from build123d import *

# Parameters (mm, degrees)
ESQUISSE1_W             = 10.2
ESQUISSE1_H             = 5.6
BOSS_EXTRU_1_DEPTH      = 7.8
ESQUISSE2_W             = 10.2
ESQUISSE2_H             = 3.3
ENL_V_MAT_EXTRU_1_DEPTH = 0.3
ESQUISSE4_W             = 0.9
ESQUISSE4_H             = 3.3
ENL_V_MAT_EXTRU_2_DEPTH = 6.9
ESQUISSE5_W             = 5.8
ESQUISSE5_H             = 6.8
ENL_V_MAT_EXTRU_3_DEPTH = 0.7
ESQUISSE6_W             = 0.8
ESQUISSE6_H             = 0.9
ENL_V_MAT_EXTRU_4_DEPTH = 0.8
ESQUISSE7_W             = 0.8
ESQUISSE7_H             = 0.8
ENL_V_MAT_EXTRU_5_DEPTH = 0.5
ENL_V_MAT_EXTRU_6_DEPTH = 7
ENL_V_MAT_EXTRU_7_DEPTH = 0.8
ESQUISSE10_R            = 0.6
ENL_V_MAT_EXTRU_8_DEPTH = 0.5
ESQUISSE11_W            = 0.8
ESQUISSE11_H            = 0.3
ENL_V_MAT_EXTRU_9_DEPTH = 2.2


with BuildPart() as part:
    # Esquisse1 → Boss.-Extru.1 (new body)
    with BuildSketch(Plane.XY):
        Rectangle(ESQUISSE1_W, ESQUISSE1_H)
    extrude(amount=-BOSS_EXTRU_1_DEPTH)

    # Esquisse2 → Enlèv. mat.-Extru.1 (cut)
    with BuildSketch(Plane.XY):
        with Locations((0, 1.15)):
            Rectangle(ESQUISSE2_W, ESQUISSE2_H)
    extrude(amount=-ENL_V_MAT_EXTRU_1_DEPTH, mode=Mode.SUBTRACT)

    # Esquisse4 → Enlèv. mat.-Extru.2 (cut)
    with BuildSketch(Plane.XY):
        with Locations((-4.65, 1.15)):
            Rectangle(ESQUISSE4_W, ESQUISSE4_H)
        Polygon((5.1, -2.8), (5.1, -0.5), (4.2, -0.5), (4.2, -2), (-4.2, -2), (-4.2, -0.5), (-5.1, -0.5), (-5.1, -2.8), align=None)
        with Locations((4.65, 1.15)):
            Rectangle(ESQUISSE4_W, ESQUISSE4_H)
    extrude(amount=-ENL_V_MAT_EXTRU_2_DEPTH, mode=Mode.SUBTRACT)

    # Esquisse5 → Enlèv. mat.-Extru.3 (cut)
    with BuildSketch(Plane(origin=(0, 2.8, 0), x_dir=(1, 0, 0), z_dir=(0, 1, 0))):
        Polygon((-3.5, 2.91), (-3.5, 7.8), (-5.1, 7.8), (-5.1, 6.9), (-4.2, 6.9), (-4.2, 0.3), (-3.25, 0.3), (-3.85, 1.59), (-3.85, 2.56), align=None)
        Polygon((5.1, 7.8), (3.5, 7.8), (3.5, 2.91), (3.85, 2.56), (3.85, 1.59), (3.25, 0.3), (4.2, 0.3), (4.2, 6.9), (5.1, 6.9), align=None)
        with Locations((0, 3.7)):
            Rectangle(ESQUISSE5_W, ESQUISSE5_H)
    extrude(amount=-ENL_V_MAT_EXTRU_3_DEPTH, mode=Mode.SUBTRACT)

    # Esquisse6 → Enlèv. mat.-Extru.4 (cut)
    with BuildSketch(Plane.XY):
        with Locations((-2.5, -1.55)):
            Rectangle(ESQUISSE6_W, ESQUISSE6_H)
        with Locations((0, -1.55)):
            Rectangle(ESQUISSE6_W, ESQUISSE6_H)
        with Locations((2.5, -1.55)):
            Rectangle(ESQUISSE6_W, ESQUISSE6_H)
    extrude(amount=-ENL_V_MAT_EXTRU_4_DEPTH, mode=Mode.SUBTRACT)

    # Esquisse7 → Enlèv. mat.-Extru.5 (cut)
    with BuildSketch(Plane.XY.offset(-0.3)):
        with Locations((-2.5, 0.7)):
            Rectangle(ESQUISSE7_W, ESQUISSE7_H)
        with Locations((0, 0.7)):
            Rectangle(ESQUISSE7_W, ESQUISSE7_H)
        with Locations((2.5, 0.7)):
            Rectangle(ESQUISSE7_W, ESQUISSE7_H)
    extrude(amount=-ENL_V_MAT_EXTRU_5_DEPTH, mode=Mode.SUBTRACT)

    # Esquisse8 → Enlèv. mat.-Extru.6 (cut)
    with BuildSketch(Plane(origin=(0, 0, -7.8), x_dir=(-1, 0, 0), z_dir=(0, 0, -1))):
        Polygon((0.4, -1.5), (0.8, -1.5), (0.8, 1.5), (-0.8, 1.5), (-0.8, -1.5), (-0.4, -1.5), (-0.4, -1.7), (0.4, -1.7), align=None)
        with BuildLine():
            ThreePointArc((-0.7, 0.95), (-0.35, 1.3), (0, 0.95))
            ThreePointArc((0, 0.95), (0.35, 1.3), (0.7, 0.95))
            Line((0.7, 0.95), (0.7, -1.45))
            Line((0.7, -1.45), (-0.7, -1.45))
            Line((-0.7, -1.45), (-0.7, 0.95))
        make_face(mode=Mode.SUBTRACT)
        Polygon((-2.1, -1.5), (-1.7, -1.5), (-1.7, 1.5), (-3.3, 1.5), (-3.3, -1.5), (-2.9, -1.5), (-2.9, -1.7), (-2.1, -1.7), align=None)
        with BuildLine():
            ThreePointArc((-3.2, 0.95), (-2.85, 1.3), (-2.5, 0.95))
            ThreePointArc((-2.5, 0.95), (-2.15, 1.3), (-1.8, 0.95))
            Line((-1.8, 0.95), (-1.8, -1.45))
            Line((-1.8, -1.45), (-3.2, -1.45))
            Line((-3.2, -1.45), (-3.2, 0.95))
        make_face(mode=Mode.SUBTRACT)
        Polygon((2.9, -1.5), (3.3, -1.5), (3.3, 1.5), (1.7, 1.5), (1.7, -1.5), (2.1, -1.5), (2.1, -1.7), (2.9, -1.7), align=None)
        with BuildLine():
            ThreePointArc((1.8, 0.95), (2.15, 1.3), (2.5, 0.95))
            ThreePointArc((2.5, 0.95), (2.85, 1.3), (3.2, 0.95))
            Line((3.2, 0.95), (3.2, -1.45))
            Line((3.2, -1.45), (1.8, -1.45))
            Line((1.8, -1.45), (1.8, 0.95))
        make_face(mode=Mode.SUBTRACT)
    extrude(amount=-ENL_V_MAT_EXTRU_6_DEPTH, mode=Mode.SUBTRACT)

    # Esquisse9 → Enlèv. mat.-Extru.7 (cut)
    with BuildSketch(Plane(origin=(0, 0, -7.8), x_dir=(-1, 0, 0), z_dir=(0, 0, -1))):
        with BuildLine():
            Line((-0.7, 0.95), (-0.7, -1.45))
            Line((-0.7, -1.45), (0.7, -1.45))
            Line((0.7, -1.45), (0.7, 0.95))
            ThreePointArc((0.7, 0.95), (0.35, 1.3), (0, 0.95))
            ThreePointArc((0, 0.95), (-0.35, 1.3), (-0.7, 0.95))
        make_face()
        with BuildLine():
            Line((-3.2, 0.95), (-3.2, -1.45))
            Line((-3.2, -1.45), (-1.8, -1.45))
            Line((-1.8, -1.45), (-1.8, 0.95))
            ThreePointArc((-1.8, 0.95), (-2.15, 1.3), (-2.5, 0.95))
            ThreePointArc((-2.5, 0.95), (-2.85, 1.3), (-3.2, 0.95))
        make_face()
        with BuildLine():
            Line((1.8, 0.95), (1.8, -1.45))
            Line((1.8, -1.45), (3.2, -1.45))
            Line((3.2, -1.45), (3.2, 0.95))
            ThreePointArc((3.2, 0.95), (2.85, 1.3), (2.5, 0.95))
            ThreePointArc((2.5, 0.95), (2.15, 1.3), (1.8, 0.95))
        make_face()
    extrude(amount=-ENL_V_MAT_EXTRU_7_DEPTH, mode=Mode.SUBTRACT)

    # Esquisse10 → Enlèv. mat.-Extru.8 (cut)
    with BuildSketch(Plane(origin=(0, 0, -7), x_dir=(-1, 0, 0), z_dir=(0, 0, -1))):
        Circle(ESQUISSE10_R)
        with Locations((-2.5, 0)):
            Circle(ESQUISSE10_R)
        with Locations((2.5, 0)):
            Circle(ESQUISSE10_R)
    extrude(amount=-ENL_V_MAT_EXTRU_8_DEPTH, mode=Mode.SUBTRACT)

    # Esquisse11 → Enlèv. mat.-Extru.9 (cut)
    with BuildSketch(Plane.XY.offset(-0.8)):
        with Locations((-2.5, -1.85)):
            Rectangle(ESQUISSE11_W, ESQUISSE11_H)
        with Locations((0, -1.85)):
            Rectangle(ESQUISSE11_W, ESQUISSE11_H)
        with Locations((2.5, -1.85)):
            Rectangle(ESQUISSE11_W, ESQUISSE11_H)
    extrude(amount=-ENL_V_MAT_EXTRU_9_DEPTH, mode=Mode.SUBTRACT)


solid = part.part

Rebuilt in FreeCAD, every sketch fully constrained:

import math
import FreeCAD as App
import Part
import Sketcher
Q = App.Units.Quantity

doc = App.newDocument("Part")
body = doc.addObject("PartDesign::Body", "Body")

# Sketch on XY plane
sketch1 = doc.addObject("Sketcher::SketchObject", "Sketch")
body.addObject(sketch1)
sketch1.AttachmentSupport = (doc.XY_Plane, [""])
sketch1.MapMode = "FlatFace"
sketch1.addGeometry([
    Part.LineSegment(App.Vector(-5, 3, 0), App.Vector(-5, -3, 0)),
    Part.LineSegment(App.Vector(-5, -3, 0), App.Vector(5, -3, 0)),
    Part.LineSegment(App.Vector(5, -3, 0), App.Vector(5, 3, 0)),
    Part.LineSegment(App.Vector(5, 3, 0), App.Vector(-5, 3, 0)),
], False)
sketch1.addConstraint([
    Sketcher.Constraint("Coincident", 0, 2, 1, 1),
    Sketcher.Constraint("Coincident", 1, 2, 2, 1),
    Sketcher.Constraint("Coincident", 2, 2, 3, 1),
    Sketcher.Constraint("Coincident", 3, 2, 0, 1),
    Sketcher.Constraint("Vertical", 0),
    Sketcher.Constraint("Horizontal", 1),
    Sketcher.Constraint("Vertical", 2),
    Sketcher.Constraint("Horizontal", 3),
    Sketcher.Constraint("Symmetric", 0, 2, 2, 2, -1, 1),
    Sketcher.Constraint("DistanceX", 1, 1, 1, 2, Q("10.2 mm")),
    Sketcher.Constraint("DistanceY", 0, 2, 0, 1, Q("5.6 mm")),
])
pad1 = doc.addObject("PartDesign::Pad", "Pad")
body.addObject(pad1)
pad1.Profile = sketch1
pad1.Length = 7.8
pad1.Reversed = True

# Sketch on XY plane
sketch2 = doc.addObject("Sketcher::SketchObject", "Sketch001")
body.addObject(sketch2)
sketch2.AttachmentSupport = (doc.XY_Plane, [""])
sketch2.MapMode = "FlatFace"
sketch2.addGeometry([
    Part.LineSegment(App.Vector(-5.1, 2.8, 0), App.Vector(-5.1, -0.5, 0)),
    Part.LineSegment(App.Vector(-5.1, -0.5, 0), App.Vector(5.1, -0.5, 0)),
    Part.LineSegment(App.Vector(5.1, -0.5, 0), App.Vector(5.1, 2.8, 0)),
    Part.LineSegment(App.Vector(5.1, 2.8, 0), App.Vector(-5.1, 2.8, 0)),
], False)
sketch2.addConstraint([
    Sketcher.Constraint("Coincident", 0, 2, 1, 1),
    Sketcher.Constraint("Coincident", 1, 2, 2, 1),
    Sketcher.Constraint("Coincident", 2, 2, 3, 1),
    Sketcher.Constraint("Coincident", 3, 2, 0, 1),
    Sketcher.Constraint("Vertical", 0),
    Sketcher.Constraint("Horizontal", 1),
    Sketcher.Constraint("Vertical", 2),
    Sketcher.Constraint("Horizontal", 3),
    Sketcher.Constraint("DistanceX", 1, 1, 1, 2, Q("10.2 mm")),
    Sketcher.Constraint("DistanceY", 0, 2, 0, 1, Q("3.3 mm")),
    Sketcher.Constraint("DistanceX", 0, 2, -1, 1, Q("5.1 mm")),
    Sketcher.Constraint("DistanceY", 0, 2, -1, 1, Q("0.5 mm")),
])
pocket1 = doc.addObject("PartDesign::Pocket", "Pocket")
body.addObject(pocket1)
pocket1.Profile = sketch2
pocket1.Length = 0.3

# Sketch on XY plane
sketch3 = doc.addObject("Sketcher::SketchObject", "Sketch002")
body.addObject(sketch3)
sketch3.AttachmentSupport = (doc.XY_Plane, [""])
sketch3.MapMode = "FlatFace"
sketch3.addGeometry([
    Part.LineSegment(App.Vector(-5.1, 2.8, 0), App.Vector(-5.1, -2.8, 0)),  # 0
    Part.LineSegment(App.Vector(-5.1, -2.8, 0), App.Vector(5.1, -2.8, 0)),  # 1
    Part.LineSegment(App.Vector(5.1, -2.8, 0), App.Vector(5.1, 2.8, 0)),  # 2
    Part.LineSegment(App.Vector(5.1, 2.8, 0), App.Vector(4.2, 2.8, 0)),  # 3
    Part.LineSegment(App.Vector(4.2, 2.8, 0), App.Vector(4.2, -2, 0)),  # 4
    Part.LineSegment(App.Vector(4.2, -2, 0), App.Vector(-4.2, -2, 0)),  # 5
    Part.LineSegment(App.Vector(-4.2, -2, 0), App.Vector(-4.2, 2.8, 0)),  # 6
    Part.LineSegment(App.Vector(-4.2, 2.8, 0), App.Vector(-5.1, 2.8, 0)),  # 7
], False)
sketch3.addConstraint([
    Sketcher.Constraint("Coincident", 0, 2, 1, 1),
    Sketcher.Constraint("Coincident", 1, 2, 2, 1),
    Sketcher.Constraint("Coincident", 2, 2, 3, 1),
    Sketcher.Constraint("Coincident", 3, 2, 4, 1),
    Sketcher.Constraint("Coincident", 4, 2, 5, 1),
    Sketcher.Constraint("Coincident", 5, 2, 6, 1),
    Sketcher.Constraint("Coincident", 6, 2, 7, 1),
    Sketcher.Constraint("Coincident", 7, 2, 0, 1),
    Sketcher.Constraint("Vertical", 0),
    Sketcher.Constraint("Horizontal", 1),
    Sketcher.Constraint("Vertical", 2),
    Sketcher.Constraint("Horizontal", 3),
    Sketcher.Constraint("Vertical", 4),
    Sketcher.Constraint("Horizontal", 5),
    Sketcher.Constraint("Vertical", 6),
    Sketcher.Constraint("Horizontal", 7),
    Sketcher.Constraint("Symmetric", 0, 2, 2, 2, -1, 1),
    Sketcher.Constraint("Symmetric", 3, 2, 6, 2, -2),
    Sketcher.Constraint("DistanceX", 1, 1, 1, 2, Q("10.2 mm")),
    Sketcher.Constraint("DistanceX", 3, 2, 3, 1, Q("0.9 mm")),
    Sketcher.Constraint("DistanceY", 0, 2, 0, 1, Q("5.6 mm")),
    Sketcher.Constraint("DistanceY", 4, 2, 4, 1, Q("4.8 mm")),
])
pocket2 = doc.addObject("PartDesign::Pocket", "Pocket001")
body.addObject(pocket2)
pocket2.Profile = sketch3
pocket2.Length = 6.9

# Sketch on XZ plane
sketch4 = doc.addObject("Sketcher::SketchObject", "Sketch003")
body.addObject(sketch4)
sketch4.AttachmentSupport = (doc.XZ_Plane, [""])
sketch4.MapMode = "FlatFace"
sketch4.AttachmentOffset = App.Placement(App.Vector(0, 0, -2.8), App.Rotation())
sketch4.addGeometry([
    Part.LineSegment(App.Vector(-3.5, -2.91, 0), App.Vector(-3.5, -7.8, 0)),  # 0
    Part.LineSegment(App.Vector(-3.5, -7.8, 0), App.Vector(-5.1, -7.8, 0)),  # 1
    Part.LineSegment(App.Vector(-5.1, -7.8, 0), App.Vector(-5.1, -6.9, 0)),  # 2
    Part.LineSegment(App.Vector(-5.1, -6.9, 0), App.Vector(-4.2, -6.9, 0)),  # 3
    Part.LineSegment(App.Vector(-4.2, -6.9, 0), App.Vector(-4.2, -0.3, 0)),  # 4
    Part.LineSegment(App.Vector(-4.2, -0.3, 0), App.Vector(-3.25, -0.3, 0)),  # 5
    Part.LineSegment(App.Vector(-3.25, -0.3, 0), App.Vector(-3.85, -1.59, 0)),  # 6
    Part.LineSegment(App.Vector(-3.85, -1.59, 0), App.Vector(-3.85, -2.56, 0)),  # 7
    Part.LineSegment(App.Vector(-3.85, -2.56, 0), App.Vector(-3.5, -2.91, 0)),  # 8
    Part.LineSegment(App.Vector(5.1, -7.8, 0), App.Vector(3.5, -7.8, 0)),  # 9
    Part.LineSegment(App.Vector(3.5, -7.8, 0), App.Vector(3.5, -2.91, 0)),  # 10
    Part.LineSegment(App.Vector(3.5, -2.91, 0), App.Vector(3.85, -2.56, 0)),  # 11
    Part.LineSegment(App.Vector(3.85, -2.56, 0), App.Vector(3.85, -1.59, 0)),  # 12
    Part.LineSegment(App.Vector(3.85, -1.59, 0), App.Vector(3.25, -0.3, 0)),  # 13
    Part.LineSegment(App.Vector(3.25, -0.3, 0), App.Vector(4.2, -0.3, 0)),  # 14
    Part.LineSegment(App.Vector(4.2, -0.3, 0), App.Vector(4.2, -6.9, 0)),  # 15
    Part.LineSegment(App.Vector(4.2, -6.9, 0), App.Vector(5.1, -6.9, 0)),  # 16
    Part.LineSegment(App.Vector(5.1, -6.9, 0), App.Vector(5.1, -7.8, 0)),  # 17
    Part.LineSegment(App.Vector(-2.9, -7.1, 0), App.Vector(-2.9, -0.3, 0)),  # 18
    Part.LineSegment(App.Vector(-2.9, -0.3, 0), App.Vector(2.9, -0.3, 0)),  # 19
    Part.LineSegment(App.Vector(2.9, -0.3, 0), App.Vector(2.9, -7.1, 0)),  # 20
    Part.LineSegment(App.Vector(2.9, -7.1, 0), App.Vector(-2.9, -7.1, 0)),  # 21
], False)
sketch4.addConstraint([
    Sketcher.Constraint("Coincident", 0, 2, 1, 1),
    Sketcher.Constraint("Coincident", 1, 2, 2, 1),
    Sketcher.Constraint("Coincident", 2, 2, 3, 1),
    Sketcher.Constraint("Coincident", 3, 2, 4, 1),
    Sketcher.Constraint("Coincident", 4, 2, 5, 1),
    Sketcher.Constraint("Coincident", 5, 2, 6, 1),
    Sketcher.Constraint("Coincident", 6, 2, 7, 1),
    Sketcher.Constraint("Coincident", 7, 2, 8, 1),
    Sketcher.Constraint("Coincident", 8, 2, 0, 1),
    Sketcher.Constraint("Coincident", 9, 2, 10, 1),
    Sketcher.Constraint("Coincident", 10, 2, 11, 1),
    Sketcher.Constraint("Coincident", 11, 2, 12, 1),
    Sketcher.Constraint("Coincident", 12, 2, 13, 1),
    Sketcher.Constraint("Coincident", 13, 2, 14, 1),
    Sketcher.Constraint("Coincident", 14, 2, 15, 1),
    Sketcher.Constraint("Coincident", 15, 2, 16, 1),
    Sketcher.Constraint("Coincident", 16, 2, 17, 1),
    Sketcher.Constraint("Coincident", 17, 2, 9, 1),
    Sketcher.Constraint("Coincident", 18, 2, 19, 1),
    Sketcher.Constraint("Coincident", 19, 2, 20, 1),
    Sketcher.Constraint("Coincident", 20, 2, 21, 1),
    Sketcher.Constraint("Coincident", 21, 2, 18, 1),
    Sketcher.Constraint("Vertical", 0),
    Sketcher.Constraint("Horizontal", 1),
    Sketcher.Constraint("Vertical", 2),
    Sketcher.Constraint("Horizontal", 3),
    Sketcher.Constraint("Vertical", 4),
    Sketcher.Constraint("Horizontal", 5),
    Sketcher.Constraint("Vertical", 7),
    Sketcher.Constraint("Horizontal", 9),
    Sketcher.Constraint("Vertical", 10),
    Sketcher.Constraint("Vertical", 12),
    Sketcher.Constraint("Horizontal", 14),
    Sketcher.Constraint("Vertical", 15),
    Sketcher.Constraint("Horizontal", 16),
    Sketcher.Constraint("Vertical", 17),
    Sketcher.Constraint("Vertical", 18),
    Sketcher.Constraint("Horizontal", 19),
    Sketcher.Constraint("Vertical", 20),
    Sketcher.Constraint("Horizontal", 21),
    Sketcher.Constraint("Symmetric", 0, 2, 9, 2, -2),
    Sketcher.Constraint("Symmetric", 7, 2, 11, 2, -2),
    Sketcher.Constraint("Symmetric", 5, 2, 13, 2, -2),
    Sketcher.Constraint("Symmetric", 3, 2, 15, 2, -2),
    Sketcher.Constraint("Perpendicular", 8, 11),
    Sketcher.Constraint("Horizontal", 8, 2, 10, 2),
    Sketcher.Constraint("Horizontal", 6, 2, 12, 2),
    Sketcher.Constraint("Horizontal", 14, 2, 18, 2),
    Sketcher.Constraint("Equal", 1, 9),
    Sketcher.Constraint("Equal", 16, 2),
    Sketcher.Constraint("DistanceX", 1, 2, 1, 1, Q("1.6 mm")),
    Sketcher.Constraint("DistanceX", 3, 1, 3, 2, Q("0.9 mm")),
    Sketcher.Constraint("DistanceX", 19, 1, 19, 2, Q("5.8 mm")),
    Sketcher.Constraint("DistanceY", 4, 1, 4, 2, Q("6.6 mm")),
    Sketcher.Constraint("DistanceY", 18, 1, 18, 2, Q("6.8 mm")),
    Sketcher.Constraint("DistanceX", 0, 2, 9, 2, Q("7 mm")),
    Sketcher.Constraint("DistanceX", 5, 1, 5, 2, Q("0.95 mm")),
    Sketcher.Constraint("DistanceY", 0, 2, 0, 1, Q("4.89 mm")),
    Sketcher.Constraint("DistanceY", 7, 2, 7, 1, Q("0.97 mm")),
    Sketcher.Constraint("DistanceY", 0, 2, -1, 1, Q("7.8 mm")),
    Sketcher.Constraint("DistanceX", 18, 2, -1, 1, Q("2.9 mm")),
    Sketcher.Constraint("DistanceX", 6, 2, 5, 2, Q("0.6 mm")),
])
pocket3 = doc.addObject("PartDesign::Pocket", "Pocket002")
body.addObject(pocket3)
pocket3.Profile = sketch4
pocket3.Length = 0.7
pocket3.Reversed = True

# Sketch on XY plane
sketch5 = doc.addObject("Sketcher::SketchObject", "Sketch004")
body.addObject(sketch5)
sketch5.AttachmentSupport = (doc.XY_Plane, [""])
sketch5.MapMode = "FlatFace"
sketch5.addGeometry([
    Part.LineSegment(App.Vector(-2.9, -1.1, 0), App.Vector(-2.9, -2, 0)),  # 0
    Part.LineSegment(App.Vector(-2.9, -2, 0), App.Vector(-2.1, -2, 0)),  # 1
    Part.LineSegment(App.Vector(-2.1, -2, 0), App.Vector(-2.1, -1.1, 0)),  # 2
    Part.LineSegment(App.Vector(-2.1, -1.1, 0), App.Vector(-2.9, -1.1, 0)),  # 3
    Part.LineSegment(App.Vector(-0.4, -1.1, 0), App.Vector(-0.4, -2, 0)),  # 4
    Part.LineSegment(App.Vector(-0.4, -2, 0), App.Vector(0.4, -2, 0)),  # 5
    Part.LineSegment(App.Vector(0.4, -2, 0), App.Vector(0.4, -1.1, 0)),  # 6
    Part.LineSegment(App.Vector(0.4, -1.1, 0), App.Vector(-0.4, -1.1, 0)),  # 7
    Part.LineSegment(App.Vector(2.1, -1.1, 0), App.Vector(2.1, -2, 0)),  # 8
    Part.LineSegment(App.Vector(2.1, -2, 0), App.Vector(2.9, -2, 0)),  # 9
    Part.LineSegment(App.Vector(2.9, -2, 0), App.Vector(2.9, -1.1, 0)),  # 10
    Part.LineSegment(App.Vector(2.9, -1.1, 0), App.Vector(2.1, -1.1, 0)),  # 11
], False)
sketch5.addConstraint([
    Sketcher.Constraint("Coincident", 0, 2, 1, 1),
    Sketcher.Constraint("Coincident", 1, 2, 2, 1),
    Sketcher.Constraint("Coincident", 2, 2, 3, 1),
    Sketcher.Constraint("Coincident", 3, 2, 0, 1),
    Sketcher.Constraint("Coincident", 4, 2, 5, 1),
    Sketcher.Constraint("Coincident", 5, 2, 6, 1),
    Sketcher.Constraint("Coincident", 6, 2, 7, 1),
    Sketcher.Constraint("Coincident", 7, 2, 4, 1),
    Sketcher.Constraint("Coincident", 8, 2, 9, 1),
    Sketcher.Constraint("Coincident", 9, 2, 10, 1),
    Sketcher.Constraint("Coincident", 10, 2, 11, 1),
    Sketcher.Constraint("Coincident", 11, 2, 8, 1),
    Sketcher.Constraint("Vertical", 0),
    Sketcher.Constraint("Horizontal", 1),
    Sketcher.Constraint("Vertical", 2),
    Sketcher.Constraint("Horizontal", 3),
    Sketcher.Constraint("Vertical", 4),
    Sketcher.Constraint("Horizontal", 5),
    Sketcher.Constraint("Vertical", 6),
    Sketcher.Constraint("Horizontal", 7),
    Sketcher.Constraint("Vertical", 8),
    Sketcher.Constraint("Horizontal", 9),
    Sketcher.Constraint("Vertical", 10),
    Sketcher.Constraint("Horizontal", 11),
    Sketcher.Constraint("Symmetric", 1, 2, 8, 2, -2),
    Sketcher.Constraint("Symmetric", 3, 2, 10, 2, -2),
    Sketcher.Constraint("Horizontal", 1, 2, 4, 2),
    Sketcher.Constraint("Horizontal", 3, 2, 6, 2),
    Sketcher.Constraint("Equal", 3, 5),
    Sketcher.Constraint("DistanceX", 1, 1, 1, 2, Q("0.8 mm")),
    Sketcher.Constraint("DistanceY", 0, 2, 0, 1, Q("0.9 mm")),
    Sketcher.Constraint("DistanceY", 0, 2, -1, 1, Q("2 mm")),
    Sketcher.Constraint("DistanceX", 0, 2, -1, 1, Q("2.9 mm")),
    Sketcher.Constraint("DistanceX", 4, 2, -1, 1, Q("0.4 mm")),
])
pocket4 = doc.addObject("PartDesign::Pocket", "Pocket003")
body.addObject(pocket4)
pocket4.Profile = sketch5
pocket4.Length = 0.8

# Sketch on XY plane
sketch6 = doc.addObject("Sketcher::SketchObject", "Sketch005")
body.addObject(sketch6)
sketch6.AttachmentSupport = (doc.XY_Plane, [""])
sketch6.MapMode = "FlatFace"
sketch6.AttachmentOffset = App.Placement(App.Vector(0, 0, -0.3), App.Rotation())
sketch6.addGeometry([
    Part.LineSegment(App.Vector(-2.9, 1.1, 0), App.Vector(-2.9, 0.3, 0)),  # 0
    Part.LineSegment(App.Vector(-2.9, 0.3, 0), App.Vector(-2.1, 0.3, 0)),  # 1
    Part.LineSegment(App.Vector(-2.1, 0.3, 0), App.Vector(-2.1, 1.1, 0)),  # 2
    Part.LineSegment(App.Vector(-2.1, 1.1, 0), App.Vector(-2.9, 1.1, 0)),  # 3
    Part.LineSegment(App.Vector(-0.4, 1.1, 0), App.Vector(-0.4, 0.3, 0)),  # 4
    Part.LineSegment(App.Vector(-0.4, 0.3, 0), App.Vector(0.4, 0.3, 0)),  # 5
    Part.LineSegment(App.Vector(0.4, 0.3, 0), App.Vector(0.4, 1.1, 0)),  # 6
    Part.LineSegment(App.Vector(0.4, 1.1, 0), App.Vector(-0.4, 1.1, 0)),  # 7
    Part.LineSegment(App.Vector(2.1, 1.1, 0), App.Vector(2.1, 0.3, 0)),  # 8
    Part.LineSegment(App.Vector(2.1, 0.3, 0), App.Vector(2.9, 0.3, 0)),  # 9
    Part.LineSegment(App.Vector(2.9, 0.3, 0), App.Vector(2.9, 1.1, 0)),  # 10
    Part.LineSegment(App.Vector(2.9, 1.1, 0), App.Vector(2.1, 1.1, 0)),  # 11
], False)
sketch6.addConstraint([
    Sketcher.Constraint("Coincident", 0, 2, 1, 1),
    Sketcher.Constraint("Coincident", 1, 2, 2, 1),
    Sketcher.Constraint("Coincident", 2, 2, 3, 1),
    Sketcher.Constraint("Coincident", 3, 2, 0, 1),
    Sketcher.Constraint("Coincident", 4, 2, 5, 1),
    Sketcher.Constraint("Coincident", 5, 2, 6, 1),
    Sketcher.Constraint("Coincident", 6, 2, 7, 1),
    Sketcher.Constraint("Coincident", 7, 2, 4, 1),
    Sketcher.Constraint("Coincident", 8, 2, 9, 1),
    Sketcher.Constraint("Coincident", 9, 2, 10, 1),
    Sketcher.Constraint("Coincident", 10, 2, 11, 1),
    Sketcher.Constraint("Coincident", 11, 2, 8, 1),
    Sketcher.Constraint("Vertical", 0),
    Sketcher.Constraint("Horizontal", 1),
    Sketcher.Constraint("Vertical", 2),
    Sketcher.Constraint("Horizontal", 3),
    Sketcher.Constraint("Vertical", 4),
    Sketcher.Constraint("Horizontal", 5),
    Sketcher.Constraint("Vertical", 6),
    Sketcher.Constraint("Horizontal", 7),
    Sketcher.Constraint("Vertical", 8),
    Sketcher.Constraint("Horizontal", 9),
    Sketcher.Constraint("Vertical", 10),
    Sketcher.Constraint("Horizontal", 11),
    Sketcher.Constraint("Symmetric", 1, 2, 8, 2, -2),
    Sketcher.Constraint("Symmetric", 3, 2, 10, 2, -2),
    Sketcher.Constraint("Horizontal", 1, 2, 4, 2),
    Sketcher.Constraint("Horizontal", 3, 2, 6, 2),
    Sketcher.Constraint("Equal", 3, 5),
    Sketcher.Constraint("Equal", 11, 0),
    Sketcher.Constraint("DistanceX", 1, 1, 1, 2, Q("0.8 mm")),
    Sketcher.Constraint("DistanceX", 0, 2, -1, 1, Q("2.9 mm")),
    Sketcher.Constraint("DistanceY", -1, 1, 0, 2, Q("0.3 mm")),
    Sketcher.Constraint("DistanceX", 4, 2, -1, 1, Q("0.4 mm")),
])
pocket5 = doc.addObject("PartDesign::Pocket", "Pocket004")
body.addObject(pocket5)
pocket5.Profile = sketch6
pocket5.Length = 0.5

# Sketch on XY plane
sketch7 = doc.addObject("Sketcher::SketchObject", "Sketch006")
body.addObject(sketch7)
sketch7.AttachmentSupport = (doc.XY_Plane, [""])
sketch7.MapMode = "FlatFace"
sketch7.AttachmentOffset = App.Placement(App.Vector(0, 0, -7.8), App.Rotation())
sketch7.addGeometry([
    Part.LineSegment(App.Vector(-0.4, -1.5, 0), App.Vector(-0.8, -1.5, 0)),  # 0
    Part.LineSegment(App.Vector(-0.8, -1.5, 0), App.Vector(-0.8, 1.5, 0)),  # 1
    Part.LineSegment(App.Vector(-0.8, 1.5, 0), App.Vector(0.8, 1.5, 0)),  # 2
    Part.LineSegment(App.Vector(0.8, 1.5, 0), App.Vector(0.8, -1.5, 0)),  # 3
    Part.LineSegment(App.Vector(0.8, -1.5, 0), App.Vector(0.4, -1.5, 0)),  # 4
    Part.LineSegment(App.Vector(0.4, -1.5, 0), App.Vector(0.4, -1.7, 0)),  # 5
    Part.LineSegment(App.Vector(0.4, -1.7, 0), App.Vector(-0.4, -1.7, 0)),  # 6
    Part.LineSegment(App.Vector(-0.4, -1.7, 0), App.Vector(-0.4, -1.5, 0)),  # 7
    Part.LineSegment(App.Vector(0.7, -1.45, 0), App.Vector(0.7, 0.95, 0)),  # 8
    Part.ArcOfCircle(Part.Circle(App.Vector(0.35, 0.95, 0), App.Vector(0, 0, 1), 0.35), math.radians(0), math.radians(180)),  # 9
    Part.ArcOfCircle(Part.Circle(App.Vector(-0.35, 0.95, 0), App.Vector(0, 0, 1), 0.35), math.radians(0), math.radians(180)),  # 10
    Part.LineSegment(App.Vector(-0.7, 0.95, 0), App.Vector(-0.7, -1.45, 0)),  # 11
    Part.LineSegment(App.Vector(-0.7, -1.45, 0), App.Vector(0.7, -1.45, 0)),  # 12
    Part.LineSegment(App.Vector(2.1, -1.5, 0), App.Vector(1.7, -1.5, 0)),  # 13
    Part.LineSegment(App.Vector(1.7, -1.5, 0), App.Vector(1.7, 1.5, 0)),  # 14
    Part.LineSegment(App.Vector(1.7, 1.5, 0), App.Vector(3.3, 1.5, 0)),  # 15
    Part.LineSegment(App.Vector(3.3, 1.5, 0), App.Vector(3.3, -1.5, 0)),  # 16
    Part.LineSegment(App.Vector(3.3, -1.5, 0), App.Vector(2.9, -1.5, 0)),  # 17
    Part.LineSegment(App.Vector(2.9, -1.5, 0), App.Vector(2.9, -1.7, 0)),  # 18
    Part.LineSegment(App.Vector(2.9, -1.7, 0), App.Vector(2.1, -1.7, 0)),  # 19
    Part.LineSegment(App.Vector(2.1, -1.7, 0), App.Vector(2.1, -1.5, 0)),  # 20
    Part.LineSegment(App.Vector(3.2, -1.45, 0), App.Vector(3.2, 0.95, 0)),  # 21
    Part.ArcOfCircle(Part.Circle(App.Vector(2.85, 0.95, 0), App.Vector(0, 0, 1), 0.35), math.radians(0), math.radians(180)),  # 22
    Part.ArcOfCircle(Part.Circle(App.Vector(2.15, 0.95, 0), App.Vector(0, 0, 1), 0.35), math.radians(0), math.radians(180)),  # 23
    Part.LineSegment(App.Vector(1.8, 0.95, 0), App.Vector(1.8, -1.45, 0)),  # 24
    Part.LineSegment(App.Vector(1.8, -1.45, 0), App.Vector(3.2, -1.45, 0)),  # 25
    Part.LineSegment(App.Vector(-2.9, -1.5, 0), App.Vector(-3.3, -1.5, 0)),  # 26
    Part.LineSegment(App.Vector(-3.3, -1.5, 0), App.Vector(-3.3, 1.5, 0)),  # 27
    Part.LineSegment(App.Vector(-3.3, 1.5, 0), App.Vector(-1.7, 1.5, 0)),  # 28
    Part.LineSegment(App.Vector(-1.7, 1.5, 0), App.Vector(-1.7, -1.5, 0)),  # 29
    Part.LineSegment(App.Vector(-1.7, -1.5, 0), App.Vector(-2.1, -1.5, 0)),  # 30
    Part.LineSegment(App.Vector(-2.1, -1.5, 0), App.Vector(-2.1, -1.7, 0)),  # 31
    Part.LineSegment(App.Vector(-2.1, -1.7, 0), App.Vector(-2.9, -1.7, 0)),  # 32
    Part.LineSegment(App.Vector(-2.9, -1.7, 0), App.Vector(-2.9, -1.5, 0)),  # 33
    Part.LineSegment(App.Vector(-1.8, -1.45, 0), App.Vector(-1.8, 0.95, 0)),  # 34
    Part.ArcOfCircle(Part.Circle(App.Vector(-2.15, 0.95, 0), App.Vector(0, 0, 1), 0.35), math.radians(0), math.radians(180)),  # 35
    Part.ArcOfCircle(Part.Circle(App.Vector(-2.85, 0.95, 0), App.Vector(0, 0, 1), 0.35), math.radians(0), math.radians(180)),  # 36
    Part.LineSegment(App.Vector(-3.2, 0.95, 0), App.Vector(-3.2, -1.45, 0)),  # 37
    Part.LineSegment(App.Vector(-3.2, -1.45, 0), App.Vector(-1.8, -1.45, 0)),  # 38
], False)
sketch7.addConstraint([
    Sketcher.Constraint("Coincident", 0, 2, 1, 1),
    Sketcher.Constraint("Coincident", 1, 2, 2, 1),
    Sketcher.Constraint("Coincident", 2, 2, 3, 1),
    Sketcher.Constraint("Coincident", 3, 2, 4, 1),
    Sketcher.Constraint("Coincident", 4, 2, 5, 1),
    Sketcher.Constraint("Coincident", 5, 2, 6, 1),
    Sketcher.Constraint("Coincident", 6, 2, 7, 1),
    Sketcher.Constraint("Coincident", 7, 2, 0, 1),
    Sketcher.Constraint("Tangent", 8, 2, 9, 1),
    Sketcher.Constraint("Tangent", 9, 2, 10, 1),
    Sketcher.Constraint("Tangent", 10, 2, 11, 1),
    Sketcher.Constraint("Coincident", 11, 2, 12, 1),
    Sketcher.Constraint("Coincident", 12, 2, 8, 1),
    Sketcher.Constraint("Coincident", 13, 2, 14, 1),
    Sketcher.Constraint("Coincident", 14, 2, 15, 1),
    Sketcher.Constraint("Coincident", 15, 2, 16, 1),
    Sketcher.Constraint("Coincident", 16, 2, 17, 1),
    Sketcher.Constraint("Coincident", 17, 2, 18, 1),
    Sketcher.Constraint("Coincident", 18, 2, 19, 1),
    Sketcher.Constraint("Coincident", 19, 2, 20, 1),
    Sketcher.Constraint("Coincident", 20, 2, 13, 1),
    Sketcher.Constraint("Tangent", 21, 2, 22, 1),
    Sketcher.Constraint("Tangent", 22, 2, 23, 1),
    Sketcher.Constraint("Tangent", 23, 2, 24, 1),
    Sketcher.Constraint("Coincident", 24, 2, 25, 1),
    Sketcher.Constraint("Coincident", 25, 2, 21, 1),
    Sketcher.Constraint("Coincident", 26, 2, 27, 1),
    Sketcher.Constraint("Coincident", 27, 2, 28, 1),
    Sketcher.Constraint("Coincident", 28, 2, 29, 1),
    Sketcher.Constraint("Coincident", 29, 2, 30, 1),
    Sketcher.Constraint("Coincident", 30, 2, 31, 1),
    Sketcher.Constraint("Coincident", 31, 2, 32, 1),
    Sketcher.Constraint("Coincident", 32, 2, 33, 1),
    Sketcher.Constraint("Coincident", 33, 2, 26, 1),
    Sketcher.Constraint("Tangent", 34, 2, 35, 1),
    Sketcher.Constraint("Tangent", 35, 2, 36, 1),
    Sketcher.Constraint("Tangent", 36, 2, 37, 1),
    Sketcher.Constraint("Coincident", 37, 2, 38, 1),
    Sketcher.Constraint("Coincident", 38, 2, 34, 1),
    Sketcher.Constraint("Horizontal", 0),
    Sketcher.Constraint("Vertical", 1),
    Sketcher.Constraint("Horizontal", 2),
    Sketcher.Constraint("Vertical", 3),
    Sketcher.Constraint("Horizontal", 4),
    Sketcher.Constraint("Vertical", 5),
    Sketcher.Constraint("Horizontal", 6),
    Sketcher.Constraint("Vertical", 7),
    Sketcher.Constraint("Vertical", 8),
    Sketcher.Constraint("Vertical", 11),
    Sketcher.Constraint("Horizontal", 12),
    Sketcher.Constraint("Horizontal", 13),
    Sketcher.Constraint("Vertical", 14),
    Sketcher.Constraint("Horizontal", 15),
    Sketcher.Constraint("Vertical", 16),
    Sketcher.Constraint("Horizontal", 17),
    Sketcher.Constraint("Vertical", 18),
    Sketcher.Constraint("Horizontal", 19),
    Sketcher.Constraint("Vertical", 20),
    Sketcher.Constraint("Vertical", 21),
    Sketcher.Constraint("Vertical", 24),
    Sketcher.Constraint("Horizontal", 25),
    Sketcher.Constraint("Horizontal", 26),
    Sketcher.Constraint("Vertical", 27),
    Sketcher.Constraint("Horizontal", 28),
    Sketcher.Constraint("Vertical", 29),
    Sketcher.Constraint("Horizontal", 30),
    Sketcher.Constraint("Vertical", 31),
    Sketcher.Constraint("Horizontal", 32),
    Sketcher.Constraint("Vertical", 33),
    Sketcher.Constraint("Vertical", 34),
    Sketcher.Constraint("Vertical", 37),
    Sketcher.Constraint("Horizontal", 38),
    Sketcher.Constraint("Equal", 9, 10),
    Sketcher.Constraint("Equal", 10, 22),
    Sketcher.Constraint("Equal", 22, 23),
    Sketcher.Constraint("Equal", 23, 35),
    Sketcher.Constraint("Equal", 35, 36),
    Sketcher.Constraint("Symmetric", 0, 2, 2, 2, -1, 1),
    Sketcher.Constraint("Symmetric", 15, 2, 26, 2, -1, 1),
    Sketcher.Constraint("Symmetric", 13, 2, 28, 2, -1, 1),
    Sketcher.Constraint("Symmetric", 9, 3, 10, 3, -2),
    Sketcher.Constraint("Symmetric", 23, 3, 35, 3, -2),
    Sketcher.Constraint("Symmetric", 4, 2, 7, 2, -2),
    Sketcher.Constraint("Symmetric", 20, 2, 30, 2, -2),
    Sketcher.Constraint("Symmetric", 18, 2, 32, 2, -2),
    Sketcher.Constraint("Horizontal", 10, 3, 22, 3),
    Sketcher.Constraint("Horizontal", 22, 3, 23, 3),
    Sketcher.Constraint("Horizontal", 35, 3, 36, 3),
    Sketcher.Constraint("Horizontal", 7, 2, 13, 2),
    Sketcher.Constraint("Horizontal", 2, 2, 14, 2),
    Sketcher.Constraint("Horizontal", 13, 2, 16, 2),
    Sketcher.Constraint("Horizontal", 6, 2, 18, 2),
    Sketcher.Constraint("Horizontal", 12, 2, 24, 2),
    Sketcher.Constraint("Horizontal", 25, 2, 37, 2),
    Sketcher.Constraint("Equal", 4, 13),
    Sketcher.Constraint("Equal", 2, 15),
    Sketcher.Constraint("Equal", 13, 17),
    Sketcher.Constraint("DistanceY", 1, 1, 1, 2, Q("3 mm")),
    Sketcher.Constraint("Radius", 9, Q("0.35 mm")),
    Sketcher.Constraint("DistanceX", 0, 2, 0, 1, Q("0.4 mm")),
    Sketcher.Constraint("DistanceX", 2, 1, 2, 2, Q("1.6 mm")),
    Sketcher.Constraint("DistanceY", 5, 2, 5, 1, Q("0.2 mm")),
    Sketcher.Constraint("DistanceY", 8, 1, 8, 2, Q("2.4 mm")),
    Sketcher.Constraint("DistanceX", 35, 3, 22, 3, Q("5 mm")),
    Sketcher.Constraint("DistanceX", 12, 2, 13, 2, Q("1 mm")),
    Sketcher.Constraint("DistanceY", -1, 1, 9, 3, Q("0.95 mm")),
])
pocket6 = doc.addObject("PartDesign::Pocket", "Pocket005")
body.addObject(pocket6)
pocket6.Profile = sketch7
pocket6.Length = 7
pocket6.Reversed = True

# Sketch on XY plane
sketch8 = doc.addObject("Sketcher::SketchObject", "Sketch007")
body.addObject(sketch8)
sketch8.AttachmentSupport = (doc.XY_Plane, [""])
sketch8.MapMode = "FlatFace"
sketch8.AttachmentOffset = App.Placement(App.Vector(0, 0, -7.8), App.Rotation())
sketch8.addGeometry([
    Part.LineSegment(App.Vector(0.7, 0.95, 0), App.Vector(0.7, -1.45, 0)),  # 0
    Part.LineSegment(App.Vector(0.7, -1.45, 0), App.Vector(-0.7, -1.45, 0)),  # 1
    Part.LineSegment(App.Vector(-0.7, -1.45, 0), App.Vector(-0.7, 0.95, 0)),  # 2
    Part.ArcOfCircle(Part.Circle(App.Vector(-0.35, 0.95, 0), App.Vector(0, 0, 1), 0.35), math.radians(0), math.radians(180)),  # 3
    Part.ArcOfCircle(Part.Circle(App.Vector(0.35, 0.95, 0), App.Vector(0, 0, 1), 0.35), math.radians(0), math.radians(180)),  # 4
    Part.LineSegment(App.Vector(3.2, 0.95, 0), App.Vector(3.2, -1.45, 0)),  # 5
    Part.LineSegment(App.Vector(3.2, -1.45, 0), App.Vector(1.8, -1.45, 0)),  # 6
    Part.LineSegment(App.Vector(1.8, -1.45, 0), App.Vector(1.8, 0.95, 0)),  # 7
    Part.ArcOfCircle(Part.Circle(App.Vector(2.15, 0.95, 0), App.Vector(0, 0, 1), 0.35), math.radians(0), math.radians(180)),  # 8
    Part.ArcOfCircle(Part.Circle(App.Vector(2.85, 0.95, 0), App.Vector(0, 0, 1), 0.35), math.radians(0), math.radians(180)),  # 9
    Part.LineSegment(App.Vector(-1.8, 0.95, 0), App.Vector(-1.8, -1.45, 0)),  # 10
    Part.LineSegment(App.Vector(-1.8, -1.45, 0), App.Vector(-3.2, -1.45, 0)),  # 11
    Part.LineSegment(App.Vector(-3.2, -1.45, 0), App.Vector(-3.2, 0.95, 0)),  # 12
    Part.ArcOfCircle(Part.Circle(App.Vector(-2.85, 0.95, 0), App.Vector(0, 0, 1), 0.35), math.radians(0), math.radians(180)),  # 13
    Part.ArcOfCircle(Part.Circle(App.Vector(-2.15, 0.95, 0), App.Vector(0, 0, 1), 0.35), math.radians(0), math.radians(180)),  # 14
], False)
sketch8.addConstraint([
    Sketcher.Constraint("Coincident", 0, 2, 1, 1),
    Sketcher.Constraint("Coincident", 1, 2, 2, 1),
    Sketcher.Constraint("Tangent", 2, 2, 3, 2),
    Sketcher.Constraint("Tangent", 3, 1, 4, 2),
    Sketcher.Constraint("Tangent", 4, 1, 0, 1),
    Sketcher.Constraint("Coincident", 5, 2, 6, 1),
    Sketcher.Constraint("Coincident", 6, 2, 7, 1),
    Sketcher.Constraint("Tangent", 7, 2, 8, 2),
    Sketcher.Constraint("Tangent", 8, 1, 9, 2),
    Sketcher.Constraint("Tangent", 9, 1, 5, 1),
    Sketcher.Constraint("Coincident", 10, 2, 11, 1),
    Sketcher.Constraint("Coincident", 11, 2, 12, 1),
    Sketcher.Constraint("Tangent", 12, 2, 13, 2),
    Sketcher.Constraint("Tangent", 13, 1, 14, 2),
    Sketcher.Constraint("Tangent", 14, 1, 10, 1),
    Sketcher.Constraint("Vertical", 0),
    Sketcher.Constraint("Horizontal", 1),
    Sketcher.Constraint("Vertical", 2),
    Sketcher.Constraint("Vertical", 5),
    Sketcher.Constraint("Horizontal", 6),
    Sketcher.Constraint("Vertical", 7),
    Sketcher.Constraint("Vertical", 10),
    Sketcher.Constraint("Horizontal", 11),
    Sketcher.Constraint("Vertical", 12),
    Sketcher.Constraint("Equal", 3, 4),
    Sketcher.Constraint("Equal", 4, 8),
    Sketcher.Constraint("Equal", 8, 9),
    Sketcher.Constraint("Equal", 9, 13),
    Sketcher.Constraint("Equal", 13, 14),
    Sketcher.Constraint("Symmetric", 3, 3, 4, 3, -2),
    Sketcher.Constraint("Symmetric", 9, 3, 13, 3, -2),
    Sketcher.Constraint("Horizontal", 4, 3, 8, 3),
    Sketcher.Constraint("Horizontal", 8, 3, 9, 3),
    Sketcher.Constraint("Horizontal", 13, 3, 14, 3),
    Sketcher.Constraint("Horizontal", 1, 2, 5, 2),
    Sketcher.Constraint("Horizontal", 6, 2, 10, 2),
    Sketcher.Constraint("Radius", 3, Q("0.35 mm")),
    Sketcher.Constraint("DistanceY", 0, 2, 0, 1, Q("2.4 mm")),
    Sketcher.Constraint("DistanceX", 13, 3, 8, 3, Q("5 mm")),
    Sketcher.Constraint("DistanceY", -1, 1, 3, 3, Q("0.95 mm")),
])
pocket7 = doc.addObject("PartDesign::Pocket", "Pocket006")
body.addObject(pocket7)
pocket7.Profile = sketch8
pocket7.Length = 0.8
pocket7.Reversed = True

# Sketch on XY plane
sketch9 = doc.addObject("Sketcher::SketchObject", "Sketch008")
body.addObject(sketch9)
sketch9.AttachmentSupport = (doc.XY_Plane, [""])
sketch9.MapMode = "FlatFace"
sketch9.AttachmentOffset = App.Placement(App.Vector(0, 0, -7), App.Rotation())
sketch9.addGeometry([
    Part.Circle(App.Vector(0, 0, 0), App.Vector(0, 0, 1), 0.6),
    Part.Circle(App.Vector(2.5, 0, 0), App.Vector(0, 0, 1), 0.6),
    Part.Circle(App.Vector(-2.5, 0, 0), App.Vector(0, 0, 1), 0.6),
], False)
sketch9.addConstraint([
    Sketcher.Constraint("Coincident", 0, 3, -1, 1),
    Sketcher.Constraint("Equal", 0, 1),
    Sketcher.Constraint("Equal", 1, 2),
    Sketcher.Constraint("Symmetric", 1, 3, 2, 3, -1, 1),
    Sketcher.Constraint("PointOnObject", 1, 3, -1),
    Sketcher.Constraint("Diameter", 0, Q("1.2 mm")),
    Sketcher.Constraint("DistanceX", 2, 3, 1, 3, Q("5 mm")),
])
pocket8 = doc.addObject("PartDesign::Pocket", "Pocket007")
body.addObject(pocket8)
pocket8.Profile = sketch9
pocket8.Length = 0.5
pocket8.Reversed = True

# Sketch on XY plane
sketch10 = doc.addObject("Sketcher::SketchObject", "Sketch009")
body.addObject(sketch10)
sketch10.AttachmentSupport = (doc.XY_Plane, [""])
sketch10.MapMode = "FlatFace"
sketch10.AttachmentOffset = App.Placement(App.Vector(0, 0, -0.8), App.Rotation())
sketch10.addGeometry([
    Part.LineSegment(App.Vector(-2.9, -1.7, 0), App.Vector(-2.9, -2, 0)),  # 0
    Part.LineSegment(App.Vector(-2.9, -2, 0), App.Vector(-2.1, -2, 0)),  # 1
    Part.LineSegment(App.Vector(-2.1, -2, 0), App.Vector(-2.1, -1.7, 0)),  # 2
    Part.LineSegment(App.Vector(-2.1, -1.7, 0), App.Vector(-2.9, -1.7, 0)),  # 3
    Part.LineSegment(App.Vector(-0.4, -1.7, 0), App.Vector(-0.4, -2, 0)),  # 4
    Part.LineSegment(App.Vector(-0.4, -2, 0), App.Vector(0.4, -2, 0)),  # 5
    Part.LineSegment(App.Vector(0.4, -2, 0), App.Vector(0.4, -1.7, 0)),  # 6
    Part.LineSegment(App.Vector(0.4, -1.7, 0), App.Vector(-0.4, -1.7, 0)),  # 7
    Part.LineSegment(App.Vector(2.1, -1.7, 0), App.Vector(2.1, -2, 0)),  # 8
    Part.LineSegment(App.Vector(2.1, -2, 0), App.Vector(2.9, -2, 0)),  # 9
    Part.LineSegment(App.Vector(2.9, -2, 0), App.Vector(2.9, -1.7, 0)),  # 10
    Part.LineSegment(App.Vector(2.9, -1.7, 0), App.Vector(2.1, -1.7, 0)),  # 11
], False)
sketch10.addConstraint([
    Sketcher.Constraint("Coincident", 0, 2, 1, 1),
    Sketcher.Constraint("Coincident", 1, 2, 2, 1),
    Sketcher.Constraint("Coincident", 2, 2, 3, 1),
    Sketcher.Constraint("Coincident", 3, 2, 0, 1),
    Sketcher.Constraint("Coincident", 4, 2, 5, 1),
    Sketcher.Constraint("Coincident", 5, 2, 6, 1),
    Sketcher.Constraint("Coincident", 6, 2, 7, 1),
    Sketcher.Constraint("Coincident", 7, 2, 4, 1),
    Sketcher.Constraint("Coincident", 8, 2, 9, 1),
    Sketcher.Constraint("Coincident", 9, 2, 10, 1),
    Sketcher.Constraint("Coincident", 10, 2, 11, 1),
    Sketcher.Constraint("Coincident", 11, 2, 8, 1),
    Sketcher.Constraint("Vertical", 0),
    Sketcher.Constraint("Horizontal", 1),
    Sketcher.Constraint("Vertical", 2),
    Sketcher.Constraint("Horizontal", 3),
    Sketcher.Constraint("Vertical", 4),
    Sketcher.Constraint("Horizontal", 5),
    Sketcher.Constraint("Vertical", 6),
    Sketcher.Constraint("Horizontal", 7),
    Sketcher.Constraint("Vertical", 8),
    Sketcher.Constraint("Horizontal", 9),
    Sketcher.Constraint("Vertical", 10),
    Sketcher.Constraint("Horizontal", 11),
    Sketcher.Constraint("Symmetric", 1, 2, 8, 2, -2),
    Sketcher.Constraint("Symmetric", 3, 2, 10, 2, -2),
    Sketcher.Constraint("Horizontal", 1, 2, 4, 2),
    Sketcher.Constraint("Horizontal", 3, 2, 6, 2),
    Sketcher.Constraint("Equal", 3, 5),
    Sketcher.Constraint("DistanceX", 1, 1, 1, 2, Q("0.8 mm")),
    Sketcher.Constraint("DistanceY", 0, 2, 0, 1, Q("0.3 mm")),
    Sketcher.Constraint("DistanceY", 0, 2, -1, 1, Q("2 mm")),
    Sketcher.Constraint("DistanceX", 0, 2, -1, 1, Q("2.9 mm")),
    Sketcher.Constraint("DistanceX", 4, 2, -1, 1, Q("0.4 mm")),
])
pocket9 = doc.addObject("PartDesign::Pocket", "Pocket008")
body.addObject(pocket9)
pocket9.Profile = sketch10
pocket9.Length = 2.2

doc.recompute()
